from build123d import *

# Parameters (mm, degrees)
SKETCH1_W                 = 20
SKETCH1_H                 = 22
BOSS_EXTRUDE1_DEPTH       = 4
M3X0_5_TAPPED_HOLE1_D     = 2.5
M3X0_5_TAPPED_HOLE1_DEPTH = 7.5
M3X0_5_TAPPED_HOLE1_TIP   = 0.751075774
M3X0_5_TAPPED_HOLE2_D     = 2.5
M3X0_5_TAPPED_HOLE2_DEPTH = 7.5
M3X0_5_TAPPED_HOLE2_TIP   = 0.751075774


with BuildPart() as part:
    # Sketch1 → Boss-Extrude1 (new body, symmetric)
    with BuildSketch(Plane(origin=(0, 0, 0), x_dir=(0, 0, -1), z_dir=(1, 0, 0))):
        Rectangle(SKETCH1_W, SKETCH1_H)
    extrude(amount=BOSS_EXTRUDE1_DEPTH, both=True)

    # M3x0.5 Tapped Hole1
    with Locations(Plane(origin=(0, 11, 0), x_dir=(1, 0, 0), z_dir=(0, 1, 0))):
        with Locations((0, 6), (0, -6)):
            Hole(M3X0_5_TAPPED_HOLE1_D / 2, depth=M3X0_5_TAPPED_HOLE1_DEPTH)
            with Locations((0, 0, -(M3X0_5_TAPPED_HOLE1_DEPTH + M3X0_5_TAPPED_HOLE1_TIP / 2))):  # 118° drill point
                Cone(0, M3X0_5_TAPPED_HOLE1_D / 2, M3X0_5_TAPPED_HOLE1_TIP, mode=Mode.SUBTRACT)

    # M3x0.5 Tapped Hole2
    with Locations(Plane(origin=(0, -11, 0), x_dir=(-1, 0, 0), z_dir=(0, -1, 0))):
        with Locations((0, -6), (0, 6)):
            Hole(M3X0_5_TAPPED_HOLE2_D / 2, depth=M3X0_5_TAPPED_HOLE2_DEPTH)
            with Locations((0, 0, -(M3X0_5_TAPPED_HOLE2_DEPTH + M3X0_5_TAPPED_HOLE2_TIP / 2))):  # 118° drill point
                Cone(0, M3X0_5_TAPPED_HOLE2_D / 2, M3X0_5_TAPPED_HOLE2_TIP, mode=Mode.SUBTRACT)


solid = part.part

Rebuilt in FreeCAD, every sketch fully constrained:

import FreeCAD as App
import Part
import Sketcher
from FreeCAD import Vector

doc = App.newDocument("Part")
body = doc.addObject("PartDesign::Body", "Body")

# Sketch on YZ plane
sketch1 = body.newObject("Sketcher::SketchObject", "Sketch")
sketch1.AttachmentSupport = (doc.getObject("YZ_Plane"), [""])
sketch1.MapMode = "FlatFace"
sketch1.addGeometry(Part.LineSegment(Vector(11, 10, 0), Vector(-11, 10, 0)), False)
sketch1.addGeometry(Part.LineSegment(Vector(-11, 10, 0), Vector(-11, -10, 0)), False)
sketch1.addGeometry(Part.LineSegment(Vector(-11, -10, 0), Vector(11, -10, 0)), False)
sketch1.addGeometry(Part.LineSegment(Vector(11, -10, 0), Vector(11, 10, 0)), False)
sketch1.addConstraint(Sketcher.Constraint("Coincident", 0, 2, 1, 1))
sketch1.addConstraint(Sketcher.Constraint("Coincident", 1, 2, 2, 1))
sketch1.addConstraint(Sketcher.Constraint("Coincident", 2, 2, 3, 1))
sketch1.addConstraint(Sketcher.Constraint("Coincident", 3, 2, 0, 1))
sketch1.addConstraint(Sketcher.Constraint("Horizontal", 0))
sketch1.addConstraint(Sketcher.Constraint("Vertical", 1))
sketch1.addConstraint(Sketcher.Constraint("Horizontal", 2))
sketch1.addConstraint(Sketcher.Constraint("Vertical", 3))
sketch1.addConstraint(Sketcher.Constraint("Symmetric", 0, 2, 2, 2, -1, 1))
sketch1.addConstraint(Sketcher.Constraint("DistanceX", 0, 2, 0, 1, 22.0))
sketch1.addConstraint(Sketcher.Constraint("DistanceY", 1, 2, 1, 1, 20.0))
pad1 = body.newObject("PartDesign::Pad", "Pad")
pad1.Profile = sketch1
pad1.Length = 8
pad1.Midplane = True

# Sketch on XZ plane
sketch2 = body.newObject("Sketcher::SketchObject", "Sketch001")
sketch2.AttachmentSupport = (doc.getObject("XZ_Plane"), [""])
sketch2.MapMode = "FlatFace"
sketch2.AttachmentOffset = App.Placement(Vector(0, 0, -11), App.Rotation())
sketch2.addGeometry(Part.Circle(Vector(0, -6, 0), Vector(0, 0, 1), 1.2), False)
sketch2.addGeometry(Part.Circle(Vector(0, 6, 0), Vector(0, 0, 1), 1.2), False)
sketch2.addConstraint(Sketcher.Constraint("Equal", 0, 1))
sketch2.addConstraint(Sketcher.Constraint("Symmetric", 0, 3, 1, 3, -1, 1))
sketch2.addConstraint(Sketcher.Constraint("PointOnObject", 0, 3, -2))
sketch2.addConstraint(Sketcher.Constraint("Diameter", 0, 2.5))
sketch2.addConstraint(Sketcher.Constraint("DistanceY", 0, 3, -1, 1, 6.0))
doc.recompute()
hole = body.newObject("PartDesign::Hole", "Hole")
hole.Profile = sketch2
hole.ThreadType = "None"
hole.Diameter = 2.5
hole.DepthType = "Dimension"
hole.Depth = 7.5
hole.DrillPoint = "Angled"
hole.DrillPointAngle = 118
hole.Reversed = True

# Sketch on XZ plane
sketch3 = body.newObject("Sketcher::SketchObject", "Sketch002")
sketch3.AttachmentSupport = (doc.getObject("XZ_Plane"), [""])
sketch3.MapMode = "FlatFace"
sketch3.AttachmentOffset = App.Placement(Vector(0, 0, 11), App.Rotation())
sketch3.addGeometry(Part.Circle(Vector(0, 6, 0), Vector(0, 0, 1), 1.2), False)
sketch3.addGeometry(Part.Circle(Vector(0, -6, 0), Vector(0, 0, 1), 1.2), False)
sketch3.addConstraint(Sketcher.Constraint("Equal", 0, 1))
sketch3.addConstraint(Sketcher.Constraint("Symmetric", 0, 3, 1, 3, -1, 1))
sketch3.addConstraint(Sketcher.Constraint("PointOnObject", 0, 3, -2))
sketch3.addConstraint(Sketcher.Constraint("Diameter", 0, 2.5))
sketch3.addConstraint(Sketcher.Constraint("DistanceY", -1, 1, 0, 3, 6.0))
doc.recompute()
hole2 = body.newObject("PartDesign::Hole", "Hole001")
hole2.Profile = sketch3
hole2.ThreadType = "None"
hole2.Diameter = 2.5
hole2.DepthType = "Dimension"
hole2.Depth = 7.5
hole2.DrillPoint = "Angled"
hole2.DrillPointAngle = 118

doc.recompute()
